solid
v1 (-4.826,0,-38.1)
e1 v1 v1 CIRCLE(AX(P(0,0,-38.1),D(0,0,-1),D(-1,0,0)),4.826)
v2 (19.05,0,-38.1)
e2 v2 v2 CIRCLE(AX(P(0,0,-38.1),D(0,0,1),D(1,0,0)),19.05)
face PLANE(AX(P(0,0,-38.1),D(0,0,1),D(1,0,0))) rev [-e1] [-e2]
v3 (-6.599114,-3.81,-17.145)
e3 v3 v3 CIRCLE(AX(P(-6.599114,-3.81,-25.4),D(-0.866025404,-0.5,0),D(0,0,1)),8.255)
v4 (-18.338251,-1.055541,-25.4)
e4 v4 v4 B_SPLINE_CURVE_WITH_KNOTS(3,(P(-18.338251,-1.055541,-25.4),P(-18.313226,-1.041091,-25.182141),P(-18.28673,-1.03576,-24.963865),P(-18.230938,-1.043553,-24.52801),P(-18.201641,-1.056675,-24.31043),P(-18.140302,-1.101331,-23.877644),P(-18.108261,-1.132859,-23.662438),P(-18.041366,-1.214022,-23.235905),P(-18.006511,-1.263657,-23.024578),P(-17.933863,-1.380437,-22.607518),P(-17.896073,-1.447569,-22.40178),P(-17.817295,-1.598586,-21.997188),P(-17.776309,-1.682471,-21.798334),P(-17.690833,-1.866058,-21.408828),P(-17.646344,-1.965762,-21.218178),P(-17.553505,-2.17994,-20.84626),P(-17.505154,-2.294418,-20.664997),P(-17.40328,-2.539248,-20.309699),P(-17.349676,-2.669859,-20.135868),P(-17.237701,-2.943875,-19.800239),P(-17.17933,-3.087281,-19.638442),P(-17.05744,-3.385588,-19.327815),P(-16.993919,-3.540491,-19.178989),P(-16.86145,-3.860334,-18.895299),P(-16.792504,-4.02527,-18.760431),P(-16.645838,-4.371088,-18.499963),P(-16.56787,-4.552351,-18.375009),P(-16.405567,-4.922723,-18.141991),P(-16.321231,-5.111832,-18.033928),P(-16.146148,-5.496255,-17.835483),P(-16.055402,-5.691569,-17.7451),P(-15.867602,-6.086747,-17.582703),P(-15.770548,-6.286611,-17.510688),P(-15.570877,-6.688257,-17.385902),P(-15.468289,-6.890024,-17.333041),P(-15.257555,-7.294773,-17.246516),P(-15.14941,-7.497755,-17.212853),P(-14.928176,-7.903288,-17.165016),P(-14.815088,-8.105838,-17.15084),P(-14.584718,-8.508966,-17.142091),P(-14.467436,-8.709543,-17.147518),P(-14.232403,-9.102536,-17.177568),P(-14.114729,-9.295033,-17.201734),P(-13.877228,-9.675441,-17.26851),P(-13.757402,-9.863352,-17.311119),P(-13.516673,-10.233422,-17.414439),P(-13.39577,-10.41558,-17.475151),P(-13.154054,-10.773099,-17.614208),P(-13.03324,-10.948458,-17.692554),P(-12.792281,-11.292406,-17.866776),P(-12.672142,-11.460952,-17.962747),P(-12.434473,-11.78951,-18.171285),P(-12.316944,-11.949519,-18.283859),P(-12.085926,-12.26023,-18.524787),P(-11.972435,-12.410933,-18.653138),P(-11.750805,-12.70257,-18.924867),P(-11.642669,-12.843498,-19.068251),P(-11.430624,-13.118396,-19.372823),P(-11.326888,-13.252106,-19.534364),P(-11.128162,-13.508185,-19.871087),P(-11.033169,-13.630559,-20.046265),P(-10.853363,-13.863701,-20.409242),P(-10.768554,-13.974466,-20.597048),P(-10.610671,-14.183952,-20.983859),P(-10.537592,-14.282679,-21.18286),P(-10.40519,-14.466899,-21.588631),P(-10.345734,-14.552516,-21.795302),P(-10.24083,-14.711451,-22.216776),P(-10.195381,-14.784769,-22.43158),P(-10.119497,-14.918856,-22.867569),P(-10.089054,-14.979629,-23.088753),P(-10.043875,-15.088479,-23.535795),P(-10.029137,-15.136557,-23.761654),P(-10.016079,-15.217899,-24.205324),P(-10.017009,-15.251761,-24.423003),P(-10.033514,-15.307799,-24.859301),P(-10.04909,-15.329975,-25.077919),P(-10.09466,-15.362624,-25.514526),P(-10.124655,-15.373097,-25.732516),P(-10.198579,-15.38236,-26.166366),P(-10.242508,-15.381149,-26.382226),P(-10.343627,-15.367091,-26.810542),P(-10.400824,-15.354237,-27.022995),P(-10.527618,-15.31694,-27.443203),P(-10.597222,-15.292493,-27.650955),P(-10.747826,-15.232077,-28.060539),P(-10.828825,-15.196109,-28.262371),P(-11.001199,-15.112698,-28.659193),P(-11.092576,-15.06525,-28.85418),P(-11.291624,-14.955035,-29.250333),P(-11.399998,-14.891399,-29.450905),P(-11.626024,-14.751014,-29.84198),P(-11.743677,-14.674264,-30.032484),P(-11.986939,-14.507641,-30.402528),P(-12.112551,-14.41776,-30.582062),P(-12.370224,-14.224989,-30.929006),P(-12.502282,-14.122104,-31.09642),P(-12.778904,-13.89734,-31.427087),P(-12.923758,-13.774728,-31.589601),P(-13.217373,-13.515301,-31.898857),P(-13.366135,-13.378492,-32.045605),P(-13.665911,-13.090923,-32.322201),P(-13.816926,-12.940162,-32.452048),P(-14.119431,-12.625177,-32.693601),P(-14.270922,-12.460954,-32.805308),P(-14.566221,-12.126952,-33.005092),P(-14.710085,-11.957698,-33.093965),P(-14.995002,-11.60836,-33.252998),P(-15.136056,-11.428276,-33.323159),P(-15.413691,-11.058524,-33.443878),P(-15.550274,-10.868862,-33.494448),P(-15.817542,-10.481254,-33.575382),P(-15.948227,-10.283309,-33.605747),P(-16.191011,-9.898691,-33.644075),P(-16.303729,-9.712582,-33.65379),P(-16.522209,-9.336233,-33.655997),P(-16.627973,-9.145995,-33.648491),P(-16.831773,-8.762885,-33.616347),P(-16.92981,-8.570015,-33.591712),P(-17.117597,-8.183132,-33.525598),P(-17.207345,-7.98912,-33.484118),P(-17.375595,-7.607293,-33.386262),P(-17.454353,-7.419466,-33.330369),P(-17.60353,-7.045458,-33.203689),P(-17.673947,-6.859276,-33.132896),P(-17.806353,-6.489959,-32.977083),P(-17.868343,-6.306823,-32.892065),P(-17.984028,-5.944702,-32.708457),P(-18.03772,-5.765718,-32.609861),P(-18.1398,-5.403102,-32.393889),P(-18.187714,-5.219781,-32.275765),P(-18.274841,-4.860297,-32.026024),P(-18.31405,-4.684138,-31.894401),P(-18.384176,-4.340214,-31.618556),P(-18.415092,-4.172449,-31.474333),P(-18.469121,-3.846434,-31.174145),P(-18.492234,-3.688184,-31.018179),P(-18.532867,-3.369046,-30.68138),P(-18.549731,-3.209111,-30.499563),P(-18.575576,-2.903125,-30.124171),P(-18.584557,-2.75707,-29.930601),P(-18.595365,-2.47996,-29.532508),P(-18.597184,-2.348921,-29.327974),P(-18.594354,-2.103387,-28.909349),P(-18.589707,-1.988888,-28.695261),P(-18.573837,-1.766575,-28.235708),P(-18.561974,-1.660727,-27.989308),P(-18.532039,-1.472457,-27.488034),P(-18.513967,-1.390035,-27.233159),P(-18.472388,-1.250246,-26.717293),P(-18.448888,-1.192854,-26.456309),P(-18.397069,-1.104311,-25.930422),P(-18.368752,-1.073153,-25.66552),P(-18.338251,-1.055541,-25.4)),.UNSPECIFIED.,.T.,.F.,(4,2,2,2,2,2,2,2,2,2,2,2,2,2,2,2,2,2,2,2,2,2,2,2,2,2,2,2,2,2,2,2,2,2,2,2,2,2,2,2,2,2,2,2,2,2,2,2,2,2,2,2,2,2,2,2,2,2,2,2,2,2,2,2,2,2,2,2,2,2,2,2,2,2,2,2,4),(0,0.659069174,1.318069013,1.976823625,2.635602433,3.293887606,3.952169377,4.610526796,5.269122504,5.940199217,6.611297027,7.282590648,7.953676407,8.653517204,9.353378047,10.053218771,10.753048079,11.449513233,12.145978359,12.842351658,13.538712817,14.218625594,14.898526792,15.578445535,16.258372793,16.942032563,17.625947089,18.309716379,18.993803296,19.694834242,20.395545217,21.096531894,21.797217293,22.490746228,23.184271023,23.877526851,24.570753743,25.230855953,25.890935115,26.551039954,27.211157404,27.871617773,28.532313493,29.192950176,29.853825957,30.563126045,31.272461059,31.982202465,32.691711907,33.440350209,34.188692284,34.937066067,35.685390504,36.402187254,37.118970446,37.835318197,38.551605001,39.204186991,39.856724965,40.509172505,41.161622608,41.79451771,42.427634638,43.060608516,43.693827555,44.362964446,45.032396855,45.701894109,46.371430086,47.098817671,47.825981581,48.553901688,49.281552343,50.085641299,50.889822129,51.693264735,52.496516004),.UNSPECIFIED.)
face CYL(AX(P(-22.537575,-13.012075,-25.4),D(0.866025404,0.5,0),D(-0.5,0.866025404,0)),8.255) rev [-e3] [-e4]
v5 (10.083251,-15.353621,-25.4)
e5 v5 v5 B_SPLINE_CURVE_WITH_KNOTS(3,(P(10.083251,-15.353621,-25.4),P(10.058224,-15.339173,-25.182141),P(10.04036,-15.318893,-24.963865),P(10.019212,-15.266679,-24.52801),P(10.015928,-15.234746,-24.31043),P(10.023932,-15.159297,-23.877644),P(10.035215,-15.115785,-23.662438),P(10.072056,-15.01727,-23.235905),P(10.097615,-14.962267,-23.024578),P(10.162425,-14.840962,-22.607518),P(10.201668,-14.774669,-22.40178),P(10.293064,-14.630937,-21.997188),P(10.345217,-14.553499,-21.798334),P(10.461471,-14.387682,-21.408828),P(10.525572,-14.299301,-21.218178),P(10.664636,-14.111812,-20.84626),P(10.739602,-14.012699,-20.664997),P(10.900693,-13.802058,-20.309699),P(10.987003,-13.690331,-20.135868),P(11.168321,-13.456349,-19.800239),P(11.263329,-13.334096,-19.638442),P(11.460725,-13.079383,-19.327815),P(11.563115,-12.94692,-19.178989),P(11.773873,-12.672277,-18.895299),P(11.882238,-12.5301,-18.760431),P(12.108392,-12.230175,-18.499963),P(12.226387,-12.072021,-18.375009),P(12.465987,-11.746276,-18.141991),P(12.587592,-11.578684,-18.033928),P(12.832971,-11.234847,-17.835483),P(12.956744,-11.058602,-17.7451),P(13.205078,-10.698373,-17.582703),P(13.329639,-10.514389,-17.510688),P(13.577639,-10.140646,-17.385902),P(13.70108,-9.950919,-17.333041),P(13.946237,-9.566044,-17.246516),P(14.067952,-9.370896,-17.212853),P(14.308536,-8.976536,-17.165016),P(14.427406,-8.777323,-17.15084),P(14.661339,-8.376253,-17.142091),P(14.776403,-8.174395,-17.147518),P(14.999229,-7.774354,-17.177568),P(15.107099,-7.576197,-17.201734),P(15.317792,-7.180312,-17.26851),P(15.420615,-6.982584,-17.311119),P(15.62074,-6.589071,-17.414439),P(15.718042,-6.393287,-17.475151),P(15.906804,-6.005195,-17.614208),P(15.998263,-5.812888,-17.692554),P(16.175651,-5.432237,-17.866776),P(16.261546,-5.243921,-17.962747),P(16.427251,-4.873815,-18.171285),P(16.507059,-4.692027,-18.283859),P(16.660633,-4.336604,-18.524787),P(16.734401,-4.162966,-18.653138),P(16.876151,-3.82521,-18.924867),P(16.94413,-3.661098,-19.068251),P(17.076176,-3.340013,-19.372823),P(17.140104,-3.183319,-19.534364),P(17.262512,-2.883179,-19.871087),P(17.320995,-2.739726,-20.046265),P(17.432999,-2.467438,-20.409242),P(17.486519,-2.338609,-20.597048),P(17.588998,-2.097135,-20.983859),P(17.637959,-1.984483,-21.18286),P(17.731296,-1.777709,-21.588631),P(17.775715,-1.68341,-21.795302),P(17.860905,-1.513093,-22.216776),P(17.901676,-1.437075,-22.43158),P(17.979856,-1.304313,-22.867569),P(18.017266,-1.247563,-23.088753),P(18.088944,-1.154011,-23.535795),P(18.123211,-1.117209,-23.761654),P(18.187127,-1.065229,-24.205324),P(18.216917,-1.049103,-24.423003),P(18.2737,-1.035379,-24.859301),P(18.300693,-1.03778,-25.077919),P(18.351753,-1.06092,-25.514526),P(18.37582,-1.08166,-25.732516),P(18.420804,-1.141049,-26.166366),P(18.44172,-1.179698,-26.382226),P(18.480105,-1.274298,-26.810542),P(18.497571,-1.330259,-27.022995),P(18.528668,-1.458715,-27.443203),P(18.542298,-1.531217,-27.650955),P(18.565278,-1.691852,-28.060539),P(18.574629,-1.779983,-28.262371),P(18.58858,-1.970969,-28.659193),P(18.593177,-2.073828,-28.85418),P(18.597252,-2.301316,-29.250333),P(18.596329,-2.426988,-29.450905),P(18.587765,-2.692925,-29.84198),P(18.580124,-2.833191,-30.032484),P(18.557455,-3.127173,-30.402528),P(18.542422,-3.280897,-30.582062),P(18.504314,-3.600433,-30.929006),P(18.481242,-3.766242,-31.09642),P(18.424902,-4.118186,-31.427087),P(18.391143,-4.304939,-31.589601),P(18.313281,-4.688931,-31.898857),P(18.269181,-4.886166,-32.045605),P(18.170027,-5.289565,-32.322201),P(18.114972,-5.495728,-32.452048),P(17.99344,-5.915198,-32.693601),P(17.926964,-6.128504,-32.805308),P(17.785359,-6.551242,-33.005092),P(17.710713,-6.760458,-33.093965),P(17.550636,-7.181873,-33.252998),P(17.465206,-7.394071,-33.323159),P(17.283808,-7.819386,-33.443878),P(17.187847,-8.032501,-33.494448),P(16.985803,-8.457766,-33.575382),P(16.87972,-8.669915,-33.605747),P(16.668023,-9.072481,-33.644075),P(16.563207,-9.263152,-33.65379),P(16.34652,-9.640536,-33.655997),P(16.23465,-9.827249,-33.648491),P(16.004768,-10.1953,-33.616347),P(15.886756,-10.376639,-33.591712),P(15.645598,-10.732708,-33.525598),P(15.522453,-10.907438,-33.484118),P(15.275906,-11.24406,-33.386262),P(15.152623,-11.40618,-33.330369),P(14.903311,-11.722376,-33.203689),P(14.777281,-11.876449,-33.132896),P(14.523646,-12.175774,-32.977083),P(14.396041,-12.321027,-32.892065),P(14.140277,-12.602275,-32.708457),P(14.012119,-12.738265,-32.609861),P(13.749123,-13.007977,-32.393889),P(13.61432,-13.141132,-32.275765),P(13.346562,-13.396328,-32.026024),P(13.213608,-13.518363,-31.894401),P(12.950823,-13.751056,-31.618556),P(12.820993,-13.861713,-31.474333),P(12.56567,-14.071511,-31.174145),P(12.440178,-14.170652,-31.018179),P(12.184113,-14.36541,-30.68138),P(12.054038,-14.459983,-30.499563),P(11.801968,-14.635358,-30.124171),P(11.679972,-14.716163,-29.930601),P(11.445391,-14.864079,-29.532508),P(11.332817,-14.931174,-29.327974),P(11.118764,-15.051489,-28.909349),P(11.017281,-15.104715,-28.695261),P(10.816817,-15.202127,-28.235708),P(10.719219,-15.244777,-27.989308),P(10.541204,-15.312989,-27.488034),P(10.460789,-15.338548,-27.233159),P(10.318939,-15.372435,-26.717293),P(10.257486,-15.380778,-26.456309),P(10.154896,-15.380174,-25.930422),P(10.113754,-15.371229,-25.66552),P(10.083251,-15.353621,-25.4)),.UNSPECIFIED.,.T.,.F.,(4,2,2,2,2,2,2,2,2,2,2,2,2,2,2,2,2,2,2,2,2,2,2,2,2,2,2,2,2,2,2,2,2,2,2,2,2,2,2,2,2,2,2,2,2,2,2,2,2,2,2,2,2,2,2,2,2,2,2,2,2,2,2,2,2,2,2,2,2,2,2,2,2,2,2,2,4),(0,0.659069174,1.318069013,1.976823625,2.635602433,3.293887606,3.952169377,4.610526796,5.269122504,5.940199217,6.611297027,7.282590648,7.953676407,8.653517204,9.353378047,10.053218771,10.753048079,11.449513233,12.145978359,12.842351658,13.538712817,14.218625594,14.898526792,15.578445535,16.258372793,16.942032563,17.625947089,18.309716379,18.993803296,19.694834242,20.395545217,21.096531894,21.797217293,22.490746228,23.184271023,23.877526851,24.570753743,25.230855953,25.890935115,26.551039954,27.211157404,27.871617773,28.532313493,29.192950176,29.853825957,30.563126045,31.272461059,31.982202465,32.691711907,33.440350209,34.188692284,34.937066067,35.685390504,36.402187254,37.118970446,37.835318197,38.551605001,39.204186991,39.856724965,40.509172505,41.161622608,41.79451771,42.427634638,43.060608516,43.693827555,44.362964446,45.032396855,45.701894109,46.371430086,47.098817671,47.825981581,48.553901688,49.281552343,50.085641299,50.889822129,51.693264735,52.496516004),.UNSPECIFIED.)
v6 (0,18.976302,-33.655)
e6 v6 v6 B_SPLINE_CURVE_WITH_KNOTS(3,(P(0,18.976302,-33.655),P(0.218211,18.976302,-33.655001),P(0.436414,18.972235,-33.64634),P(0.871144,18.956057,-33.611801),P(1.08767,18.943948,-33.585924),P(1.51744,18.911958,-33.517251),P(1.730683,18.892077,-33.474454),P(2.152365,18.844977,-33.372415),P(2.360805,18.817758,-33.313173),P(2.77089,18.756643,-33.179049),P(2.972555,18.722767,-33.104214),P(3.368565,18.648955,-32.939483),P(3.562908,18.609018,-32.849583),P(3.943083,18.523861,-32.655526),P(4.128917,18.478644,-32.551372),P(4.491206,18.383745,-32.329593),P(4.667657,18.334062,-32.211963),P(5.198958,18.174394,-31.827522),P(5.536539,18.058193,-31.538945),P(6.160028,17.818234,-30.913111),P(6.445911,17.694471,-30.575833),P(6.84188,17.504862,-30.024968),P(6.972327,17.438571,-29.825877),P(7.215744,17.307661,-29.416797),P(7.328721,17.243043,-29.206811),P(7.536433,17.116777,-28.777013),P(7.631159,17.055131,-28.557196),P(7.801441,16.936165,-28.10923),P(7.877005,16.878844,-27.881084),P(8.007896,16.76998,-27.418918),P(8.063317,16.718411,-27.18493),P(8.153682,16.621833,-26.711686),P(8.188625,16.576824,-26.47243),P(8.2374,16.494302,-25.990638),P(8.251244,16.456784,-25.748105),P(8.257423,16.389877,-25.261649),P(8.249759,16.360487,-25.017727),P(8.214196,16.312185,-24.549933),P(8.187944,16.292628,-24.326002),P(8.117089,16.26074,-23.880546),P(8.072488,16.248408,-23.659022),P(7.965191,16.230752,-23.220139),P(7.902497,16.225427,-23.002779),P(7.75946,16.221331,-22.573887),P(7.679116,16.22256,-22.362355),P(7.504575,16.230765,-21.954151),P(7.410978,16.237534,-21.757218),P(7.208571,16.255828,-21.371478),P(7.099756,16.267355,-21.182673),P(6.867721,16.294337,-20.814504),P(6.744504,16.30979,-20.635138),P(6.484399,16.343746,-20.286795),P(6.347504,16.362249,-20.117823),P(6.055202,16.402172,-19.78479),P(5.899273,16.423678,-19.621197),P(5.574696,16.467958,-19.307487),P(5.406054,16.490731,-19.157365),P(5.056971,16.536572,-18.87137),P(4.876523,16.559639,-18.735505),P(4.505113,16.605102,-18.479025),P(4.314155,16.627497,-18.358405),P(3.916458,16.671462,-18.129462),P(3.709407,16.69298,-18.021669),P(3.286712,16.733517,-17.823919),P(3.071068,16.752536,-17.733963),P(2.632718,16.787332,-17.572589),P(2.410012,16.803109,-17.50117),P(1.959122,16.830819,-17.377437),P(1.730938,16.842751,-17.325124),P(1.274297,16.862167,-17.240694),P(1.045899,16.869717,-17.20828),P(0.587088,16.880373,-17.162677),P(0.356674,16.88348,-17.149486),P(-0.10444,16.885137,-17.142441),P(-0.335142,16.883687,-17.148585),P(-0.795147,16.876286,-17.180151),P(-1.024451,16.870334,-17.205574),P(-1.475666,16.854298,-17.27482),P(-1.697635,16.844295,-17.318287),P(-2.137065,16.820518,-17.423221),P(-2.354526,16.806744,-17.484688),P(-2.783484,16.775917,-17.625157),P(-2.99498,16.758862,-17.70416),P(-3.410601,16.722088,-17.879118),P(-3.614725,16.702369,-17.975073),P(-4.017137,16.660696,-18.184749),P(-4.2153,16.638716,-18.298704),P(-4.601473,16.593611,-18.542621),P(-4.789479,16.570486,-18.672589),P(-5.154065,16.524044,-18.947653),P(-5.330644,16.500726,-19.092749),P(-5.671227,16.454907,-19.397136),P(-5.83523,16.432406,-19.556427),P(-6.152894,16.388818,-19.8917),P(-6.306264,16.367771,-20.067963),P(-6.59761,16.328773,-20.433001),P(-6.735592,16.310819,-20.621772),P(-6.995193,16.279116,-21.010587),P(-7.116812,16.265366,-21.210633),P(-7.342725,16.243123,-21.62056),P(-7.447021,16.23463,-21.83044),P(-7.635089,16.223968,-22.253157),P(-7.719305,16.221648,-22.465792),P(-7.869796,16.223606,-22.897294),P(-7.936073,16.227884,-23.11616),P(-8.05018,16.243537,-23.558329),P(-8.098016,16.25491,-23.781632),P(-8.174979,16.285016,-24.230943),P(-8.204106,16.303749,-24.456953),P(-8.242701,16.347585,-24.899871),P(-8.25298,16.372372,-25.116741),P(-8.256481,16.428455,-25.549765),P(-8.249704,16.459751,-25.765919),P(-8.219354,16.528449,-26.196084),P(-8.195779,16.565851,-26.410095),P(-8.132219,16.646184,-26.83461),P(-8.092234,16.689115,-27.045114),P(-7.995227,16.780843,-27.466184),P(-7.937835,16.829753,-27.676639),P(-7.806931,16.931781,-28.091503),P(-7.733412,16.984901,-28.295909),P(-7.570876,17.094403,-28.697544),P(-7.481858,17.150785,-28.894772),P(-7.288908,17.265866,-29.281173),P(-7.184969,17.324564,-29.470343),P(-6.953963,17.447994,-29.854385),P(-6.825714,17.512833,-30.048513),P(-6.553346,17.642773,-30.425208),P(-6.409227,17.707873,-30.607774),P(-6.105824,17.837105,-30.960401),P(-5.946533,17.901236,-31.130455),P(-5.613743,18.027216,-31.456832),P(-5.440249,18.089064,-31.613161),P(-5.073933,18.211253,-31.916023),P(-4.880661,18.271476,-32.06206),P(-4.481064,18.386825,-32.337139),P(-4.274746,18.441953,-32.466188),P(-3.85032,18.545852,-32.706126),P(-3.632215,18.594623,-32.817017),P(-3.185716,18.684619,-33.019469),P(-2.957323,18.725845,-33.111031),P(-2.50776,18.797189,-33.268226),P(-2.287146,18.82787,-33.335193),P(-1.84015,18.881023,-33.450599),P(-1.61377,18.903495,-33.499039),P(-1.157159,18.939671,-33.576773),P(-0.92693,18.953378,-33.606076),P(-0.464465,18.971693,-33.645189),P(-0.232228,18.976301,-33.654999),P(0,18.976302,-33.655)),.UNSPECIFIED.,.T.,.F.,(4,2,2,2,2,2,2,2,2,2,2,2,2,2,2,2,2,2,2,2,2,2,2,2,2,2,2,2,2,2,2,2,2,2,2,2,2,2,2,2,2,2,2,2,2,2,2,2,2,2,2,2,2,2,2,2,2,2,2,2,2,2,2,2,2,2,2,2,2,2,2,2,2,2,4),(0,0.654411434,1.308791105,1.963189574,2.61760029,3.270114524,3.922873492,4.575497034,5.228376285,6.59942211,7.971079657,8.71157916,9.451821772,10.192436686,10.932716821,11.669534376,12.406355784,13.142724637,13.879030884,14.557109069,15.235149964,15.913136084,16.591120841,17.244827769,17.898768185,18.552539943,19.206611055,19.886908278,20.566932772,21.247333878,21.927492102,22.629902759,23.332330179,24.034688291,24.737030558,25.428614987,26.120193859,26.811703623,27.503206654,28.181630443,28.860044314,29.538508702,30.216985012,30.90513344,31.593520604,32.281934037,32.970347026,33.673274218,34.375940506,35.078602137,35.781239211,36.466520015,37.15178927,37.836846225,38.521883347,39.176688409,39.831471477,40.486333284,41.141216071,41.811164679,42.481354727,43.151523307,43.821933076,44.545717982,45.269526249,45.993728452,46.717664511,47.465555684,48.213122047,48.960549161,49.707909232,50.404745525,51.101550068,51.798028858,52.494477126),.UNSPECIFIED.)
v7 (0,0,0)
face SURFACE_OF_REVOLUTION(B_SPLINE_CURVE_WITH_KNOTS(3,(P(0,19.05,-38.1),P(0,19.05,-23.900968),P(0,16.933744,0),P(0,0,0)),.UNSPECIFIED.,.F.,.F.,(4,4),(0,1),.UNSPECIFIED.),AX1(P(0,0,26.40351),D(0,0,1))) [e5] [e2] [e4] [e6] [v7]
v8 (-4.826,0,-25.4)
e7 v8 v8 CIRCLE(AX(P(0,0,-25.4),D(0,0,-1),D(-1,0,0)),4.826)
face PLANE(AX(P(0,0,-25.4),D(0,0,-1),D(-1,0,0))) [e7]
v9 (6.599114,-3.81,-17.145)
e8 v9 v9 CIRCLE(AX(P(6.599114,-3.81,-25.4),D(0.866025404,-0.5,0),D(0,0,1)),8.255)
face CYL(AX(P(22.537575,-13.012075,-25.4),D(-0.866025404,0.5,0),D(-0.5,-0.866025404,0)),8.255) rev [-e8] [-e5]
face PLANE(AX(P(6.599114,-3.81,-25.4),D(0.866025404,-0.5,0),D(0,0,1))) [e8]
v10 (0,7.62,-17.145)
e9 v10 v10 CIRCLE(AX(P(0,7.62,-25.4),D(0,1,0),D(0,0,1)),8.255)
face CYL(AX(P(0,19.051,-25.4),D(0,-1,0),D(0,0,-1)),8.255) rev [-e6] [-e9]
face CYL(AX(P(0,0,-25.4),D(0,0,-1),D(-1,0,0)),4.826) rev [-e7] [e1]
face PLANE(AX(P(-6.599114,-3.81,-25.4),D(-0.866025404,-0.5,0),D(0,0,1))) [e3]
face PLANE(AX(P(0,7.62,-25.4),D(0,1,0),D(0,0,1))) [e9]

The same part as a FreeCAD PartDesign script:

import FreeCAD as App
import Part
import Sketcher
from FreeCAD import Vector
Q = App.Units.Quantity

doc = App.newDocument("Part")
body = doc.addObject("PartDesign::Body", "Body")

# Sketch on YZ plane
sketch1 = body.newObject("Sketcher::SketchObject", "Sketch")
sketch1.AttachmentSupport = (doc.getObject("YZ_Plane"), [""])
sketch1.MapMode = "FlatFace"
sketch1.addGeometry(Part.LineSegment(Vector(0, 0, 0), Vector(0, -38.1, 0)), False)
sketch1.addGeometry(Part.LineSegment(Vector(0, -38.1, 0), Vector(19.05, -38.1, 0)), False)
sketch1.addGeometry(Part.BSplineCurve([Vector(0, 0, 0), Vector(16.933744, 0, 0), Vector(19.05, -23.900968, 0), Vector(19.05, -38.1, 0)], [4, 4], [0, 1], False, 3, [1, 1, 1, 1], False), False)
sketch1.addConstraint(Sketcher.Constraint("Block", 2))
sketch1.addConstraint(Sketcher.Constraint("Coincident", 0, 2, 1, 1))
sketch1.addConstraint(Sketcher.Constraint("Coincident", 1, 2, 2, 2))
sketch1.addConstraint(Sketcher.Constraint("Coincident", 2, 1, 0, 1))
sketch1.addConstraint(Sketcher.Constraint("Vertical", 0))
sketch1.addConstraint(Sketcher.Constraint("Horizontal", 1))
revolution = body.newObject("PartDesign::Revolution", "Revolution")
revolution.Profile = sketch1
revolution.ReferenceAxis = (sketch1, ["V_Axis"])
revolution.Angle = 360

# Sketch on XY plane
sketch2 = body.newObject("Sketcher::SketchObject", "Sketch001")
sketch2.AttachmentSupport = (doc.getObject("XY_Plane"), [""])
sketch2.MapMode = "FlatFace"
sketch2.AttachmentOffset = App.Placement(Vector(0, 0, -1.5 * 25.4), App.Rotation())
sketch2.addGeometry(Part.Circle(Vector(0, 0, 0), Vector(0, 0, 1), 4.8), False)
sketch2.addConstraint(Sketcher.Constraint("Coincident", 0, 3, -1, 1))
sketch2.addConstraint(Sketcher.Constraint("Diameter", 0, Q("0.38 in")))
pocket1 = body.newObject("PartDesign::Pocket", "Pocket")
pocket1.Profile = sketch2
pocket1.Length = Q("0.5 in")
pocket1.Reversed = True

# Sketch on XZ plane
sketch3 = body.newObject("Sketcher::SketchObject", "Sketch002")
sketch3.AttachmentSupport = (doc.getObject("XZ_Plane"), [""])
sketch3.MapMode = "FlatFace"
sketch3.AttachmentOffset = App.Placement(Vector(0, 0, -0.3 * 25.4), App.Rotation())
sketch3.addGeometry(Part.Circle(Vector(0, -25, 0), Vector(0, 0, 1), 8), False)
sketch3.addConstraint(Sketcher.Constraint("PointOnObject", 0, 3, -2))
sketch3.addConstraint(Sketcher.Constraint("Diameter", 0, Q("0.65 in")))
sketch3.addConstraint(Sketcher.Constraint("DistanceY", 0, 3, -1, 1, Q("1 in")))
pocket2 = body.newObject("PartDesign::Pocket", "Pocket001")
pocket2.Profile = sketch3
pocket2.Length = 11.356302
doc.recompute()

polarpattern = body.newObject("PartDesign::PolarPattern", "PolarPattern")
polarpattern.Originals = [pocket2]
polarpattern.Axis = (doc.getObject("Z_Axis"), [""])
polarpattern.Angle = 360
polarpattern.Occurrences = 3
body.Tip = polarpattern

doc.recompute()
